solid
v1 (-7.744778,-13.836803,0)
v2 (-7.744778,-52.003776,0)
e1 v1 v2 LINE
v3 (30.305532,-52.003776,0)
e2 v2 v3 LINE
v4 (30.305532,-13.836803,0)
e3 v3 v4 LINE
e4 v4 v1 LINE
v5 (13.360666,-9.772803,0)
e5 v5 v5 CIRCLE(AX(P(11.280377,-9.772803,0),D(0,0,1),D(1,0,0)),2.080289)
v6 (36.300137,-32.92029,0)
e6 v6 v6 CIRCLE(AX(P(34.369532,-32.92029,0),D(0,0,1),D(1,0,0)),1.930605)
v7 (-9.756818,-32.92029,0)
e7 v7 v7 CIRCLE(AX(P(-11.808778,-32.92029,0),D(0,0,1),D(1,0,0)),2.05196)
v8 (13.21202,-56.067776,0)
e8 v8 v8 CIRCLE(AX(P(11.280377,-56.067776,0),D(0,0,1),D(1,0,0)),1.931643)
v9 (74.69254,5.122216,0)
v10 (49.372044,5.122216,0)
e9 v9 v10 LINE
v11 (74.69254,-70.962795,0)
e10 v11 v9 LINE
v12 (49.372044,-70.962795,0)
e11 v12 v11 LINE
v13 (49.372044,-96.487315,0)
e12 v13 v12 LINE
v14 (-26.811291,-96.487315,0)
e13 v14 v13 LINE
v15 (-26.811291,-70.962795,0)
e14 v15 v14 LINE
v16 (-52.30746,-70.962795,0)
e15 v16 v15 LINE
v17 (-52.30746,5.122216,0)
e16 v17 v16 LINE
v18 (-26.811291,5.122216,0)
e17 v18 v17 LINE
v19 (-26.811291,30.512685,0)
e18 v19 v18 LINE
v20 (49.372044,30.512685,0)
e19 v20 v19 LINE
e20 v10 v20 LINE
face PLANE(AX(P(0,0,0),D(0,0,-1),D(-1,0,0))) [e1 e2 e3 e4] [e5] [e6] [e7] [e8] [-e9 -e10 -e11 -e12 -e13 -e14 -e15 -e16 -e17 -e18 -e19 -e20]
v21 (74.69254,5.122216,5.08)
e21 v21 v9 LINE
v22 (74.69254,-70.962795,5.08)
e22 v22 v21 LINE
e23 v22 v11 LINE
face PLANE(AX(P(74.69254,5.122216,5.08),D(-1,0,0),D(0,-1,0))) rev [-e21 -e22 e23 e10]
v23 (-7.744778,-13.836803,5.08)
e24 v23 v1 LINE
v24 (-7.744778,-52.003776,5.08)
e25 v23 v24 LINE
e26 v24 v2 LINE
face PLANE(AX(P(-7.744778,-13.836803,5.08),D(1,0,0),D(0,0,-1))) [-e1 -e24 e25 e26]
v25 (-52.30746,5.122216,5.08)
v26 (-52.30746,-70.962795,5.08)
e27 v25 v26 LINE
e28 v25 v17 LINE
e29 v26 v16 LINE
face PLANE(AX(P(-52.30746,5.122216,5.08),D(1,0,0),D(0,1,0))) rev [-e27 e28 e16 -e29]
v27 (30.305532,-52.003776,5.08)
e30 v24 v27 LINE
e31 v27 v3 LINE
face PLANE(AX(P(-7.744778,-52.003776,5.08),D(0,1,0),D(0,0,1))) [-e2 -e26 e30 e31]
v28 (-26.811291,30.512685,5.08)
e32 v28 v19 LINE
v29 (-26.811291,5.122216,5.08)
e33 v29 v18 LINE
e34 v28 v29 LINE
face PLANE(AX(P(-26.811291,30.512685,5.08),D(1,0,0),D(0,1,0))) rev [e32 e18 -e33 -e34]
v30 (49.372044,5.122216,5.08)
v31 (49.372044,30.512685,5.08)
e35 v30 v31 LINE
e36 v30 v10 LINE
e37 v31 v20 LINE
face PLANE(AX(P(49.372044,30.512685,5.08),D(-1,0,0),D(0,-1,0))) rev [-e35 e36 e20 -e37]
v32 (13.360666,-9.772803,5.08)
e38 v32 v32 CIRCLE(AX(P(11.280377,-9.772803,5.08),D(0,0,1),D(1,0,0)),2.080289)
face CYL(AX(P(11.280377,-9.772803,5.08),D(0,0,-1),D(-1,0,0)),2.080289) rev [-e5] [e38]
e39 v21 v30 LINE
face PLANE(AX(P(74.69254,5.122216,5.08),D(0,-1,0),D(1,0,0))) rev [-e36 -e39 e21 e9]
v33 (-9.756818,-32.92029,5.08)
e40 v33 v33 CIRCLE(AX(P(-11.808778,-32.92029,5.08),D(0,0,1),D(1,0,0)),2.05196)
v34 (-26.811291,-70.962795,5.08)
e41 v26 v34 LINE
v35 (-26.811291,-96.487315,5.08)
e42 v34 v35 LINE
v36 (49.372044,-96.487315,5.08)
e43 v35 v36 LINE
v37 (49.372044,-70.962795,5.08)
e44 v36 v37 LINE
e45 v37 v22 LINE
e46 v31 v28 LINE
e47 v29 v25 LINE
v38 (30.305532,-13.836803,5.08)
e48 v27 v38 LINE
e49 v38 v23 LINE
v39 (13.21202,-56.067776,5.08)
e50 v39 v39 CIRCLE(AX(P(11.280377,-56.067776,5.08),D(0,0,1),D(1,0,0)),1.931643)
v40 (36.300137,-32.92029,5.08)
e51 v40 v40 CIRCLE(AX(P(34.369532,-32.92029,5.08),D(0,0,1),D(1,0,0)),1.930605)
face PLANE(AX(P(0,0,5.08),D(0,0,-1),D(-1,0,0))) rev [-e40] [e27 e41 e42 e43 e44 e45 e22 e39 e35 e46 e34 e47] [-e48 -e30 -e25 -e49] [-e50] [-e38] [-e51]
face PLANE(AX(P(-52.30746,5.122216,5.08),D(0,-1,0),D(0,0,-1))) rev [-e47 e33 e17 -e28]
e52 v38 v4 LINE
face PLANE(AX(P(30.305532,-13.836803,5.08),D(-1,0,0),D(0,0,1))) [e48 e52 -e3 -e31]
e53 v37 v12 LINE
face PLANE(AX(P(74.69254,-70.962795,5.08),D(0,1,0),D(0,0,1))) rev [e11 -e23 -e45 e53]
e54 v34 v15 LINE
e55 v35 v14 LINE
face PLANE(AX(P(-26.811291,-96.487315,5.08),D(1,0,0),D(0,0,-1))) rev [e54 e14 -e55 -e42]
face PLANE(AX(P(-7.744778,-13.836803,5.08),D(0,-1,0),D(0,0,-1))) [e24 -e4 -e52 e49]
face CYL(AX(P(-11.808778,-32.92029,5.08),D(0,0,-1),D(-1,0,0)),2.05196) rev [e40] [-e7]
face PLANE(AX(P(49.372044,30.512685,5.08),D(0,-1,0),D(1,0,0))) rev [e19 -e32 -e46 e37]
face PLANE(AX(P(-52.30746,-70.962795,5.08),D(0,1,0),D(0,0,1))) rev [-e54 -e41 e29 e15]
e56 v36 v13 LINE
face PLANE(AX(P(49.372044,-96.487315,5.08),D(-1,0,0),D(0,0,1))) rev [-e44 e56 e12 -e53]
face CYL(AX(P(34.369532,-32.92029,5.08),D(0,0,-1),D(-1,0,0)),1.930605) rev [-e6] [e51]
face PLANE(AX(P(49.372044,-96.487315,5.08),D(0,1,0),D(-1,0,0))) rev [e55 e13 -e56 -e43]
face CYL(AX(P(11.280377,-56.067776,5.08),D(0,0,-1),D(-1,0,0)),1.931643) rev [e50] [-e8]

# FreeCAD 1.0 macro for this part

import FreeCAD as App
import Part
import Sketcher
from FreeCAD import Vector
Q = App.Units.Quantity

doc = App.newDocument("Part")
body = doc.addObject("PartDesign::Body", "Body")

# Sketch on XY plane
sketch1 = body.newObject("Sketcher::SketchObject", "Sketch")
sketch1.AttachmentSupport = (doc.getObject("XY_Plane"), [""])
sketch1.MapMode = "FlatFace"
sketch1.addGeometry([
    Part.LineSegment(Vector(49.4, 30.5, 0), Vector(-26.8, 30.5, 0)),  # 0
    Part.LineSegment(Vector(-26.8, 30.5, 0), Vector(-26.8, 5.1, 0)),  # 1
    Part.LineSegment(Vector(-26.8, 5.1, 0), Vector(-52.3, 5.1, 0)),  # 2
    Part.LineSegment(Vector(-52.3, 5.1, 0), Vector(-52.3, -71, 0)),  # 3
    Part.LineSegment(Vector(-52.3, -71, 0), Vector(-26.8, -71, 0)),  # 4
    Part.LineSegment(Vector(-26.8, -71, 0), Vector(-26.8, -96.5, 0)),  # 5
    Part.LineSegment(Vector(-26.8, -96.5, 0), Vector(49.4, -96.5, 0)),  # 6
    Part.LineSegment(Vector(49.4, -96.5, 0), Vector(49.4, -71, 0)),  # 7
    Part.LineSegment(Vector(49.4, -71, 0), Vector(74.7, -71, 0)),  # 8
    Part.LineSegment(Vector(74.7, -71, 0), Vector(74.7, 5.1, 0)),  # 9
    Part.LineSegment(Vector(74.7, 5.1, 0), Vector(49.4, 5.1, 0)),  # 10
    Part.LineSegment(Vector(49.4, 5.1, 0), Vector(49.4, 30.5, 0)),  # 11
    Part.Circle(Vector(-11.8, -32.9, 0), Vector(0, 0, 1), 2.1),  # 12
    Part.Circle(Vector(11.3, -56.1, 0), Vector(0, 0, 1), 1.9),  # 13
    Part.LineSegment(Vector(30.3, -52, 0), Vector(-7.7, -52, 0)),  # 14
    Part.LineSegment(Vector(-7.7, -52, 0), Vector(-7.7, -13.8, 0)),  # 15
    Part.LineSegment(Vector(-7.7, -13.8, 0), Vector(30.3, -13.8, 0)),  # 16
    Part.LineSegment(Vector(30.3, -13.8, 0), Vector(30.3, -52, 0)),  # 17
    Part.Circle(Vector(34.4, -32.9, 0), Vector(0, 0, 1), 1.9),  # 18
    Part.Circle(Vector(11.3, -9.8, 0), Vector(0, 0, 1), 2.1),  # 19
], False)
sketch1.addConstraint([
    Sketcher.Constraint("Coincident", 0, 2, 1, 1),
    Sketcher.Constraint("Coincident", 1, 2, 2, 1),
    Sketcher.Constraint("Coincident", 2, 2, 3, 1),
    Sketcher.Constraint("Coincident", 3, 2, 4, 1),
    Sketcher.Constraint("Coincident", 4, 2, 5, 1),
    Sketcher.Constraint("Coincident", 5, 2, 6, 1),
    Sketcher.Constraint("Coincident", 6, 2, 7, 1),
    Sketcher.Constraint("Coincident", 7, 2, 8, 1),
    Sketcher.Constraint("Coincident", 8, 2, 9, 1),
    Sketcher.Constraint("Coincident", 9, 2, 10, 1),
    Sketcher.Constraint("Coincident", 10, 2, 11, 1),
    Sketcher.Constraint("Coincident", 11, 2, 0, 1),
    Sketcher.Constraint("Coincident", 14, 2, 15, 1),
    Sketcher.Constraint("Coincident", 15, 2, 16, 1),
    Sketcher.Constraint("Coincident", 16, 2, 17, 1),
    Sketcher.Constraint("Coincident", 17, 2, 14, 1),
    Sketcher.Constraint("Horizontal", 0),
    Sketcher.Constraint("Vertical", 1),
    Sketcher.Constraint("Horizontal", 2),
    Sketcher.Constraint("Vertical", 3),
    Sketcher.Constraint("Horizontal", 4),
    Sketcher.Constraint("Vertical", 5),
    Sketcher.Constraint("Horizontal", 6),
    Sketcher.Constraint("Vertical", 7),
    Sketcher.Constraint("Horizontal", 8),
    Sketcher.Constraint("Vertical", 9),
    Sketcher.Constraint("Horizontal", 10),
    Sketcher.Constraint("Vertical", 11),
    Sketcher.Constraint("Horizontal", 14),
    Sketcher.Constraint("Vertical", 15),
    Sketcher.Constraint("Horizontal", 16),
    Sketcher.Constraint("Vertical", 17),
    Sketcher.Constraint("Horizontal", 12, 3, 18, 3),
    Sketcher.Constraint("Horizontal", 4, 2, 7, 2),
    Sketcher.Constraint("Horizontal", 2, 2, 9, 2),
    Sketcher.Constraint("Vertical", 13, 3, 19, 3),
    Sketcher.Constraint("Vertical", 1, 2, 4, 2),
    Sketcher.Constraint("Vertical", 7, 2, 10, 2),
    Sketcher.Constraint("DistanceY", 13, 3, 14, 2, Q("0.16 in")),
    Sketcher.Constraint("DistanceX", 12, 3, 14, 2, Q("0.16 in")),
    Sketcher.Constraint("DistanceY", 15, 2, 19, 3, Q("0.16 in")),
    Sketcher.Constraint("DistanceX", 16, 2, 18, 3, Q("0.16 in")),
    Sketcher.Constraint("Diameter", 12, Q("4.10392 mm")),
    Sketcher.Constraint("Diameter", 18, Q("3.86121 mm")),
    Sketcher.Constraint("Diameter", 19, Q("4.160579 mm")),
    Sketcher.Constraint("Diameter", 13, Q("3.863287 mm")),
    Sketcher.Constraint("DistanceX", 2, 2, 2, 1, Q("25.496169 mm")),
    Sketcher.Constraint("DistanceX", 14, 2, 14, 1, Q("38.05031 mm")),
    Sketcher.Constraint("DistanceY", 1, 2, 1, 1, Q("25.390469 mm")),
    Sketcher.Constraint("DistanceY", 3, 2, 3, 1, Q("76.085011 mm")),
    Sketcher.Constraint("DistanceY", 5, 2, 5, 1, Q("25.52452 mm")),
    Sketcher.Constraint("DistanceX", 0, 2, 0, 1, Q("76.183335 mm")),
    Sketcher.Constraint("DistanceX", 8, 1, 8, 2, Q("25.320495 mm")),
    Sketcher.Constraint("DistanceY", 15, 1, 15, 2, Q("38.166974 mm")),
    Sketcher.Constraint("DistanceX", 12, 3, -1, 1, Q("11.808778 mm")),
    Sketcher.Constraint("DistanceY", 12, 3, -1, 1, Q("32.92029 mm")),
    Sketcher.Constraint("DistanceX", 0, 2, -1, 1, Q("26.811291 mm")),
    Sketcher.Constraint("DistanceY", 13, 3, 0, 2, Q("86.580461 mm")),
    Sketcher.Constraint("DistanceX", -1, 1, 13, 3, Q("11.280377 mm")),
    Sketcher.Constraint("DistanceY", 13, 3, -1, 1, Q("56.067776 mm")),
])
pad1 = body.newObject("PartDesign::Pad", "Pad")
pad1.Profile = sketch1
pad1.Length = Q("0.2 in")

doc.recompute()
